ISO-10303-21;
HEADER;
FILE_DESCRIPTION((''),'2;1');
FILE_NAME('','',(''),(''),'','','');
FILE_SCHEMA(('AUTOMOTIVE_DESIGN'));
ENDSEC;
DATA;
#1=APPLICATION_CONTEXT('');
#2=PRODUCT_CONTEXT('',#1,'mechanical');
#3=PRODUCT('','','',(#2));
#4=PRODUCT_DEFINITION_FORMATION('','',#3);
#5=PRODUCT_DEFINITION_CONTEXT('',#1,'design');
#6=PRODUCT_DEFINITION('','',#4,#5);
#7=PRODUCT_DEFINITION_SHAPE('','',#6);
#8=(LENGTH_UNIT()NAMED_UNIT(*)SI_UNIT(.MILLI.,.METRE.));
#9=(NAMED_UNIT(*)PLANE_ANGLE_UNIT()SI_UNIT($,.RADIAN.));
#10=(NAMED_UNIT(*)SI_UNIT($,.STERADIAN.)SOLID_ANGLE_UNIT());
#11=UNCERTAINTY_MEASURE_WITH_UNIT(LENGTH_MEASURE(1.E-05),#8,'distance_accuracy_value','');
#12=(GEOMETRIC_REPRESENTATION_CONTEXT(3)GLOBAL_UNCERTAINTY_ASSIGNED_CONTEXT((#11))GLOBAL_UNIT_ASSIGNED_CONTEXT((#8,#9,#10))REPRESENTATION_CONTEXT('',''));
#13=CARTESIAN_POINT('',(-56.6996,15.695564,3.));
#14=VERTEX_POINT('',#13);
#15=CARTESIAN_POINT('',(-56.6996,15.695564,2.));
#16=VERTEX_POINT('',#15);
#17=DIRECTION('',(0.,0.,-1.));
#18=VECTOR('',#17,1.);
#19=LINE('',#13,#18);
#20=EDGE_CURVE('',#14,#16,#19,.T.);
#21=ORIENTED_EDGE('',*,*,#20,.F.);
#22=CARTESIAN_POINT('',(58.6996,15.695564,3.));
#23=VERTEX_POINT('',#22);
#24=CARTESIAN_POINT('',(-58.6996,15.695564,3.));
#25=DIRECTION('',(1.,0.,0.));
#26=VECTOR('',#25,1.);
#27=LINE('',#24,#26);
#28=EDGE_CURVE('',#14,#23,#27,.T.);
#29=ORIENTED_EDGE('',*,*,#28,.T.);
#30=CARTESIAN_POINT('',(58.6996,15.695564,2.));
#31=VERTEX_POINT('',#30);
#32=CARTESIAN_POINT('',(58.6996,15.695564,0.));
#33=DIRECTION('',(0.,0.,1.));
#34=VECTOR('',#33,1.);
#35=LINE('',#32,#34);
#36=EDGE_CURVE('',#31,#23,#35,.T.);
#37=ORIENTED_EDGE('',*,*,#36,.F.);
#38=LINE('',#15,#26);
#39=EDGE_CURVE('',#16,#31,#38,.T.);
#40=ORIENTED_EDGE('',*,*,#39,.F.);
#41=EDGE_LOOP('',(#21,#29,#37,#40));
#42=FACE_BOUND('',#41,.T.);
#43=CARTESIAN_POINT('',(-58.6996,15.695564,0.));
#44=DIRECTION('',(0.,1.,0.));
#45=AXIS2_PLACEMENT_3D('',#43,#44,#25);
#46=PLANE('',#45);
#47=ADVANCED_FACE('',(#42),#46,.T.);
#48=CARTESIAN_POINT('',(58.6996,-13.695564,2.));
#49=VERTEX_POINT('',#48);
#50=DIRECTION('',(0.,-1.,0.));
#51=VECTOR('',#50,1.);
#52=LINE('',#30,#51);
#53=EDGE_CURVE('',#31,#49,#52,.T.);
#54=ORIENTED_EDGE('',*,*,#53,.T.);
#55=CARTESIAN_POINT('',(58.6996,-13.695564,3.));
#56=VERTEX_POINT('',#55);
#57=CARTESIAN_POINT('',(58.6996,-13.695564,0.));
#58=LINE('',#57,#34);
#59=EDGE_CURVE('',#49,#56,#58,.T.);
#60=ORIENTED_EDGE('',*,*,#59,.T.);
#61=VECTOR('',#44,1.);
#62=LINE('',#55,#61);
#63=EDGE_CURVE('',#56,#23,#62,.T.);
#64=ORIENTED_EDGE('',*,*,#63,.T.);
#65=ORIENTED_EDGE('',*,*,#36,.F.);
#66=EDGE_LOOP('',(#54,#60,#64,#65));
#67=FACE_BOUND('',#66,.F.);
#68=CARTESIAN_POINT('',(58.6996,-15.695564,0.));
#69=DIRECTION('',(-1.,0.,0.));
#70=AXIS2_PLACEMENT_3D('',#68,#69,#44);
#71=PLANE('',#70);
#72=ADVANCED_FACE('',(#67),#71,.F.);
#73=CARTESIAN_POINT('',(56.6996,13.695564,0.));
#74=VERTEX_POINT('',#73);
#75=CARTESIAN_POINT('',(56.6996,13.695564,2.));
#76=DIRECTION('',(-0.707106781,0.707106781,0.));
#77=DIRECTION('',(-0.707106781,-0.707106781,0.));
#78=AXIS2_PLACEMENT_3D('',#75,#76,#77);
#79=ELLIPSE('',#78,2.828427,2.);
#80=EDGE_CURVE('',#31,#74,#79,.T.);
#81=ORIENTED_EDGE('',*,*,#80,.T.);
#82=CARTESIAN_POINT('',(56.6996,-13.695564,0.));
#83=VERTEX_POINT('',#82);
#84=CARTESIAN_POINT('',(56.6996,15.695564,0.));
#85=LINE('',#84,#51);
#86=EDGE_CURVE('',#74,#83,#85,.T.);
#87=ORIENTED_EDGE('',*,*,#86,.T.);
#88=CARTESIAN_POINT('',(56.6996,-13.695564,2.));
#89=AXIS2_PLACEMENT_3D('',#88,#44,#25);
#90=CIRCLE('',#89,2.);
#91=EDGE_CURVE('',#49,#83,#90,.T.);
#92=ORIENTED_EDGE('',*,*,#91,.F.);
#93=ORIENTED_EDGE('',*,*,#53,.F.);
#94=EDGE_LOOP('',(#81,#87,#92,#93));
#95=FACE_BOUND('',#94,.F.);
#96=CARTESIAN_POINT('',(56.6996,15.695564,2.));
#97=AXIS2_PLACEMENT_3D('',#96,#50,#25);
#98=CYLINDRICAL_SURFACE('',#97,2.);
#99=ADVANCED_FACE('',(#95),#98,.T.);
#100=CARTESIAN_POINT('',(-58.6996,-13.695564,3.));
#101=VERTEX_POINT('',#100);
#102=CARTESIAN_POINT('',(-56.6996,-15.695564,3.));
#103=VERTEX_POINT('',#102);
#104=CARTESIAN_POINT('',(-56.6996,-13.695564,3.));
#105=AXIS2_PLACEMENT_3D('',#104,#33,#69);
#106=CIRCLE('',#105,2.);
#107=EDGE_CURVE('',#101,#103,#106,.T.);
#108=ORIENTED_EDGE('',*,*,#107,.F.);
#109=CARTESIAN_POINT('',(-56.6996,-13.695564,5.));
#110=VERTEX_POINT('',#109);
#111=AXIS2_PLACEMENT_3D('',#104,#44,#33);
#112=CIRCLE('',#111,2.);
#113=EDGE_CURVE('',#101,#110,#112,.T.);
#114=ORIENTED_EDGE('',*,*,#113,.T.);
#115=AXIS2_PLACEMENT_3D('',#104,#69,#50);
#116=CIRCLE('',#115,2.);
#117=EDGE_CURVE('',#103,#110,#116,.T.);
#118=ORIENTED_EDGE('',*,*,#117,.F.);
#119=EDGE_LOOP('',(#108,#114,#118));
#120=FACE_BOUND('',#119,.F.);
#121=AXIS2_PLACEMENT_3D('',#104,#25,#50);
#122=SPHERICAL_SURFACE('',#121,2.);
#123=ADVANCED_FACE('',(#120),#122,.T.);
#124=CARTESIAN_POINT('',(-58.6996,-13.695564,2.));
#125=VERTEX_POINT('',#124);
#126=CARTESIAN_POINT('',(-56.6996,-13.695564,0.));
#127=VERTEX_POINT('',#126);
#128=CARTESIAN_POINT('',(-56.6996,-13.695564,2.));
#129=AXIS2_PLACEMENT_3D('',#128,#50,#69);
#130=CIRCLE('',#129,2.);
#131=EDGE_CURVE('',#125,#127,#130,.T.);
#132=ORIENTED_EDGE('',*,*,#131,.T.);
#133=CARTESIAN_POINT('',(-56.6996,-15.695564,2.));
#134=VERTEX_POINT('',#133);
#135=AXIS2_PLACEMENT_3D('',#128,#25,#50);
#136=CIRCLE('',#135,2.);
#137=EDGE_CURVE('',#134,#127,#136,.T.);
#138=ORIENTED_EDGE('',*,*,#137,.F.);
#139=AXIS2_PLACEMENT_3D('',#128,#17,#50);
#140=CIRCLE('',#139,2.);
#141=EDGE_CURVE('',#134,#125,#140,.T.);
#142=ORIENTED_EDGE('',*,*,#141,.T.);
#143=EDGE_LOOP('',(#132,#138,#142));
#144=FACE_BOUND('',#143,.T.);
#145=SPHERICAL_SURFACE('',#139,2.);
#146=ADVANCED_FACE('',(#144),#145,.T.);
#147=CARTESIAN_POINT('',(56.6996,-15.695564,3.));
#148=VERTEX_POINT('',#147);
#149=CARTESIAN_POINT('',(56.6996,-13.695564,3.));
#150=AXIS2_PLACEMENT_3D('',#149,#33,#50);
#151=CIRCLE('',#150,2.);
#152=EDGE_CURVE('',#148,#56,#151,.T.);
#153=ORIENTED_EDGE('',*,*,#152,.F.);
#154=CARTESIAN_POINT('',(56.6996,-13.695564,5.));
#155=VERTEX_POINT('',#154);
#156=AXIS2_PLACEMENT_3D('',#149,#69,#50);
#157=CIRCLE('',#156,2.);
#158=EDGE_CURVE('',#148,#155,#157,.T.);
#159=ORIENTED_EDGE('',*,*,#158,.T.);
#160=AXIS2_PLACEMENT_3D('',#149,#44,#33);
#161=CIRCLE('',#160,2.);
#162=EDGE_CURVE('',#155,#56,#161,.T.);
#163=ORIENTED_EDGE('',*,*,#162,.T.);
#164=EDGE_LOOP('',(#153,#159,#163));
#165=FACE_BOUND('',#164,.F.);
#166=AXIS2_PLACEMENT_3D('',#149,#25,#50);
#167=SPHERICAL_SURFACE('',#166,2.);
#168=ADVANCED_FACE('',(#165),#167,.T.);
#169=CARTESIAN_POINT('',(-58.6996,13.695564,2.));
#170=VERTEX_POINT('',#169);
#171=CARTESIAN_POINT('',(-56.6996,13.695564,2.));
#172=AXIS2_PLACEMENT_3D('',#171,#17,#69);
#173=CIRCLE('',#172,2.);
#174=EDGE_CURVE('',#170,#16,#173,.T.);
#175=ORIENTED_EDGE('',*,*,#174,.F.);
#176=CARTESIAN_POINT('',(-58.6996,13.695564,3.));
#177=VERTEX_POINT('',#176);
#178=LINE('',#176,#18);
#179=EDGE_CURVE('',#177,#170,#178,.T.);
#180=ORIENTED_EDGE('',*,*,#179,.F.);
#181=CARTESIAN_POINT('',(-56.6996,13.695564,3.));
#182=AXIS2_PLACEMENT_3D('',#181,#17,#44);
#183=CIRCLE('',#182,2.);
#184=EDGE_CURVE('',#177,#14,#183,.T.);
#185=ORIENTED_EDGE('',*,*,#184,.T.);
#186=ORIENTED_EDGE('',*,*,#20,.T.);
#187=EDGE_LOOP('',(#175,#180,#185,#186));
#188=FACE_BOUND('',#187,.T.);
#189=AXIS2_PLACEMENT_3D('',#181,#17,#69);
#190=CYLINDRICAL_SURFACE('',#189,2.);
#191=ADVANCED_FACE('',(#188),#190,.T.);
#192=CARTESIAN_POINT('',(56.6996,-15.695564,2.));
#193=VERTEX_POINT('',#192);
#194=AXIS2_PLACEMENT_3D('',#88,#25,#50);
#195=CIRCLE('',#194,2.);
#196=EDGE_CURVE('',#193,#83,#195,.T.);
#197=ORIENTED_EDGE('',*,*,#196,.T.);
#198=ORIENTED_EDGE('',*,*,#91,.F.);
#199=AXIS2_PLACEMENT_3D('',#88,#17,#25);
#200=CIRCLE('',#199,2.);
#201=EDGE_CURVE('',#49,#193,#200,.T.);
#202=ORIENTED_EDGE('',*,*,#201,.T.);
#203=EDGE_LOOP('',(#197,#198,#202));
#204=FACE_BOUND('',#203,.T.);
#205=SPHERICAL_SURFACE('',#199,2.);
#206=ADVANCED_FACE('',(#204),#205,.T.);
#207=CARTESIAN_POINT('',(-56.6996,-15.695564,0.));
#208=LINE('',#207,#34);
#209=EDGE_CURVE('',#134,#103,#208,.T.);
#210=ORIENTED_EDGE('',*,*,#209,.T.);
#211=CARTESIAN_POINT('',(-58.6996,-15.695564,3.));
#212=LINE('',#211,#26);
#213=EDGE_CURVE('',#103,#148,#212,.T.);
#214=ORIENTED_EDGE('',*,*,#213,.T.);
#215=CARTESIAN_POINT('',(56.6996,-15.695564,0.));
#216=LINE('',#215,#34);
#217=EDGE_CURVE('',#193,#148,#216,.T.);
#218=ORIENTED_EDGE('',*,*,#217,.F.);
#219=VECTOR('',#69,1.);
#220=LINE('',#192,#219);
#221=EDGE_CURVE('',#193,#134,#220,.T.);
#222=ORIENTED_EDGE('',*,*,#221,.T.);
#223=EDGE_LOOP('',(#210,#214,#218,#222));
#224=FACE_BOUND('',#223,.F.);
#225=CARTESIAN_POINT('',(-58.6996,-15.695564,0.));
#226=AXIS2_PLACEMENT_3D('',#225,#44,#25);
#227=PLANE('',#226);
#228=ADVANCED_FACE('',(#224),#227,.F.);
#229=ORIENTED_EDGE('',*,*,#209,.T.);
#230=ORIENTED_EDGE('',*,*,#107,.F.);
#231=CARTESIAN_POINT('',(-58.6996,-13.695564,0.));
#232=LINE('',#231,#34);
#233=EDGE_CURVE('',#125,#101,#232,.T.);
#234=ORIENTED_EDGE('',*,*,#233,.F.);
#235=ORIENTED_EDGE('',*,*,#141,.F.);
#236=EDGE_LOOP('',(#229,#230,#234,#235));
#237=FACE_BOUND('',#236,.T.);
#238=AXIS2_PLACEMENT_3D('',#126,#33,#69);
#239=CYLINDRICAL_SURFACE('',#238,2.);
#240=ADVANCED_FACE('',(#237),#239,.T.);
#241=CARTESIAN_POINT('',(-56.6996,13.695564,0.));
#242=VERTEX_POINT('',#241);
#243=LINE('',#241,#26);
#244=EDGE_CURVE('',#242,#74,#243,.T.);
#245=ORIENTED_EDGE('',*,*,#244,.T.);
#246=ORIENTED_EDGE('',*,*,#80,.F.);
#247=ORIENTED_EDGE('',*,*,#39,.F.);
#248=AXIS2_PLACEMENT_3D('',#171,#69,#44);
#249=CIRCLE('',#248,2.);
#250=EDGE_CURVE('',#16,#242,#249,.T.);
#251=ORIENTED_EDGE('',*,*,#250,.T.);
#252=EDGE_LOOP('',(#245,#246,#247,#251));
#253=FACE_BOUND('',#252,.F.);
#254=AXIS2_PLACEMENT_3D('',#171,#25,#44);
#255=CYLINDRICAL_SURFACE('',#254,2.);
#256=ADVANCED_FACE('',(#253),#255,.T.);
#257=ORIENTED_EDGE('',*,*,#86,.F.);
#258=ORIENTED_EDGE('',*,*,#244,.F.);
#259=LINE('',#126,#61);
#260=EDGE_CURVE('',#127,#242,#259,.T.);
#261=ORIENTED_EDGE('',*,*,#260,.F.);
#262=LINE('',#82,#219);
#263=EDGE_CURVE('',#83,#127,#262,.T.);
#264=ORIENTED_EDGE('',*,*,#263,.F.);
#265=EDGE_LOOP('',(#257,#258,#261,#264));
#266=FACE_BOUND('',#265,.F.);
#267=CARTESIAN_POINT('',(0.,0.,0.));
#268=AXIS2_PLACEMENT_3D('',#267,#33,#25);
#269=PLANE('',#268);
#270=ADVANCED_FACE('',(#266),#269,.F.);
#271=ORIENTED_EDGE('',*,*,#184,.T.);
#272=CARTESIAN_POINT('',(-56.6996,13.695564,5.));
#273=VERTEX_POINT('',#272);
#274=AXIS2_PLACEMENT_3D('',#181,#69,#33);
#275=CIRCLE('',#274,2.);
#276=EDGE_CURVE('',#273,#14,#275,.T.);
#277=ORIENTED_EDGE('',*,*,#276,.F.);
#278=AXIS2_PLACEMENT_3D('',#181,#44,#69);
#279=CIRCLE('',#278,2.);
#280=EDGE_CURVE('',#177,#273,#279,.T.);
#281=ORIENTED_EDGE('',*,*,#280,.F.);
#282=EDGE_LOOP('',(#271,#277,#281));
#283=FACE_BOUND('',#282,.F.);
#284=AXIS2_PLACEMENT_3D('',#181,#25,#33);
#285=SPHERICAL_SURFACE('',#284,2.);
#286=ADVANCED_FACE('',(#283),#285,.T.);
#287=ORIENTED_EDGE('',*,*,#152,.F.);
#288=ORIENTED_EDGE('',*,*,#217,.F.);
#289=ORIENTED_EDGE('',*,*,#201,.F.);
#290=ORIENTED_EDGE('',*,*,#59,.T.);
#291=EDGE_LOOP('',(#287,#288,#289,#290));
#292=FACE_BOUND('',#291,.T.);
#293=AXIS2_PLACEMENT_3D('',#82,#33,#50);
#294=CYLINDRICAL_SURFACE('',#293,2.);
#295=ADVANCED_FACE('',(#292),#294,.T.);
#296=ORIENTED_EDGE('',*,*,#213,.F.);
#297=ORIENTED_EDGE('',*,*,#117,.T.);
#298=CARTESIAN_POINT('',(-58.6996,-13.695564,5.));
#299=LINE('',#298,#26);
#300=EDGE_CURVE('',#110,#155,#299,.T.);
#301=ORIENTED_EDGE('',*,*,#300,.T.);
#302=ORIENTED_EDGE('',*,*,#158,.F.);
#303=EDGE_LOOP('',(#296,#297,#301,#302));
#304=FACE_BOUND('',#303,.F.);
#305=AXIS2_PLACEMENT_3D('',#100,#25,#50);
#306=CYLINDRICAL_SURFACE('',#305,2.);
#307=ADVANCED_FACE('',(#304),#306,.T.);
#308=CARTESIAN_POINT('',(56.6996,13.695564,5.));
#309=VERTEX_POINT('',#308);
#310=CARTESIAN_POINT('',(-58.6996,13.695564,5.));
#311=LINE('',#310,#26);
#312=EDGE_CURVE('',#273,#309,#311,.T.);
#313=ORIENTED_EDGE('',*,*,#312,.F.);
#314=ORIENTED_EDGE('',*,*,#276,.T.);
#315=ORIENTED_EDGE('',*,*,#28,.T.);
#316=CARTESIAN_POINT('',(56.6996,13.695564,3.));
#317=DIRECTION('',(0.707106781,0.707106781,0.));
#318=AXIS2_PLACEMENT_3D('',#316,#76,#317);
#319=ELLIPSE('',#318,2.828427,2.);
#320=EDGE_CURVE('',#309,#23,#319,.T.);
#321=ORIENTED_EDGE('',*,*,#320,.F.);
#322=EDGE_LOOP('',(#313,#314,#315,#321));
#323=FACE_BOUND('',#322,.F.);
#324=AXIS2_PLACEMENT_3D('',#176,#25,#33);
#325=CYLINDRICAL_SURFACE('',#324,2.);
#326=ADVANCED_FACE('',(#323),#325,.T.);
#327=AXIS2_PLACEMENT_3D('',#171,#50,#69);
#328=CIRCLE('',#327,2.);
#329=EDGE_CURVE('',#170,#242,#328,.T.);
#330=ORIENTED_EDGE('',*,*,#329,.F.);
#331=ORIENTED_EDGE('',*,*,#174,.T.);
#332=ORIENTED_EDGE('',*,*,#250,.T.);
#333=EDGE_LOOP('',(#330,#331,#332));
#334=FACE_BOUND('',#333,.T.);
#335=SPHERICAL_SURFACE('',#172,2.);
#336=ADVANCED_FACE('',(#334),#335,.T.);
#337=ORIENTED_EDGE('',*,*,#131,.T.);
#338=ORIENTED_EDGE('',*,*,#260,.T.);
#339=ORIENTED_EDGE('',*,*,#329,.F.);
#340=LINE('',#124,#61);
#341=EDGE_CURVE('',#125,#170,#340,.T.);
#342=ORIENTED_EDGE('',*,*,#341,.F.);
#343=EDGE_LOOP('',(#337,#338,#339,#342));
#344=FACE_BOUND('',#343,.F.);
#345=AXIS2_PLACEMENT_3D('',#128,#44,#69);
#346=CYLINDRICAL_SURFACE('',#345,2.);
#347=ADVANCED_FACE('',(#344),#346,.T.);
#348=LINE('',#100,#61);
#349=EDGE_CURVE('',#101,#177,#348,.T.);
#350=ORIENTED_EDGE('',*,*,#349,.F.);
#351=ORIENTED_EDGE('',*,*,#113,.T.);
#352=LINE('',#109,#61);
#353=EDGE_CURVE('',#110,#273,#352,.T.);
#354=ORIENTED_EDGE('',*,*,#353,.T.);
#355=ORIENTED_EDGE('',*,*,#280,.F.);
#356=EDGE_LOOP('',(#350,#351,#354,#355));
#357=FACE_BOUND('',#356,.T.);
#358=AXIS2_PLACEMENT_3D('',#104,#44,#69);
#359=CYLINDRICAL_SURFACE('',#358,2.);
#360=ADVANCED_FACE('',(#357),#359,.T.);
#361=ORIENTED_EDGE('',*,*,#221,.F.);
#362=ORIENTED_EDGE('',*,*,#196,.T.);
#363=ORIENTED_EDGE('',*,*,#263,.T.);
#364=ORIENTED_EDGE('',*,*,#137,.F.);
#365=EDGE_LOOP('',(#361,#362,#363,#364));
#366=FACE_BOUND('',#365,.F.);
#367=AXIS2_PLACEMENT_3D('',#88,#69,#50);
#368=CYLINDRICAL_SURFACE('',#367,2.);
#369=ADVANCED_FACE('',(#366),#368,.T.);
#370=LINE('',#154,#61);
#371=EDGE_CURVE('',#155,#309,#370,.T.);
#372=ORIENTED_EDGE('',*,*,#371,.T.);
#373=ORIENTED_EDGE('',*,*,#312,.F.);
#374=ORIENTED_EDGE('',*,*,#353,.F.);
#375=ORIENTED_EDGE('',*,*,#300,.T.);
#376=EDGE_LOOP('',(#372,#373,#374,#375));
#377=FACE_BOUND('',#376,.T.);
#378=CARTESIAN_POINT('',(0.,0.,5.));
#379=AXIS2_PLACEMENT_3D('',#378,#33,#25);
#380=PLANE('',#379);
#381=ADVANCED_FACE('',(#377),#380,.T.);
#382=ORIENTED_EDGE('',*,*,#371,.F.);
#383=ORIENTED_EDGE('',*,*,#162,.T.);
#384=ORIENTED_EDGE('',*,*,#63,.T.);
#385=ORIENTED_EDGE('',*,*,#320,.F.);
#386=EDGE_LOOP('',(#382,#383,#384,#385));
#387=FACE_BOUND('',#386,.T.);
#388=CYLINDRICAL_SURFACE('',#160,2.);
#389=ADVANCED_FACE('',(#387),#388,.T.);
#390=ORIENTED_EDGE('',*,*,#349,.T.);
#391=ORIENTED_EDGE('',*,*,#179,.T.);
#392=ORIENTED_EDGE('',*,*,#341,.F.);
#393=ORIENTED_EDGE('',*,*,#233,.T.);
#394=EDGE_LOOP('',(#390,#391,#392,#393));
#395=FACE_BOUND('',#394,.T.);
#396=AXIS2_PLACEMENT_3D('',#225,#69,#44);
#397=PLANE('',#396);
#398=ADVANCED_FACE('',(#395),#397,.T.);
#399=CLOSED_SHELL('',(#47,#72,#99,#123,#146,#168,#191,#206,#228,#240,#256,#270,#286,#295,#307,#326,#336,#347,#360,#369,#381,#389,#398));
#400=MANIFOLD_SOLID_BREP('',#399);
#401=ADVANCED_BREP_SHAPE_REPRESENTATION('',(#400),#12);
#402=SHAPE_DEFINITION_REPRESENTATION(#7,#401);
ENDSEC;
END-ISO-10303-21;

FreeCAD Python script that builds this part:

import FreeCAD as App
import Part
import Sketcher

V = App.Vector


def edges_at(feature, points):
    """Names of the edges that pass closest to the given points."""
    edges = feature.Shape.Edges
    near = lambda p: min(range(len(edges)), key=lambda i: edges[i].distToShape(Part.Vertex(*p))[0])
    return sorted({f"Edge{near(p) + 1}" for p in points})


def add_polygon(sketch, points):
    """Adds a closed chain of lines whose ends are joined by coincident constraints."""
    first, n = sketch.GeometryCount, len(points)
    for a, b in zip(points, points[1:] + points[:1]):
        sketch.addGeometry(Part.LineSegment(App.Vector(*a, 0), App.Vector(*b, 0)), False)
    for i in range(n):
        sketch.addConstraint(Sketcher.Constraint("Coincident", first + i, 2, first + (i + 1) % n, 1))

doc = App.newDocument("Part")
body = doc.addObject("PartDesign::Body", "Body")

# Sketch on XY plane
sketch1 = body.newObject("Sketcher::SketchObject", "Sketch")
sketch1.AttachmentSupport = (doc.getObject("XY_Plane"), [""])
sketch1.MapMode = "FlatFace"
add_polygon(sketch1, [(-59, 16), (-59, -16), (59, -16), (59, 16)])  # lines 0-3
sketch1.addConstraint([
    Sketcher.Constraint("Vertical", 0),
    Sketcher.Constraint("Horizontal", 1),
    Sketcher.Constraint("Vertical", 2),
    Sketcher.Constraint("Horizontal", 3),
    Sketcher.Constraint("Symmetric", 0, 2, 2, 2, -1, 1),
    Sketcher.Constraint("DistanceX", 1, 1, 1, 2, 117.3992),
    Sketcher.Constraint("DistanceY", 0, 2, 0, 1, 31.391128),
])
pad1 = body.newObject("PartDesign::Pad", "Pad")
pad1.Profile = sketch1
pad1.Length = 5
doc.recompute()

fillet = body.newObject("PartDesign::Fillet", "Fillet")
fillet.Base = (pad1, edges_at(pad1, [(0, -15.696, 5)]))
fillet.Radius = 2
doc.recompute()

fillet2 = body.newObject("PartDesign::Fillet", "Fillet001")
fillet2.Base = (fillet, edges_at(fillet, [(58.7, 1, 5), (0, 15.696, 5)]))
fillet2.Radius = 2
doc.recompute()

fillet3 = body.newObject("PartDesign::Fillet", "Fillet002")
fillet3.Base = (fillet2, edges_at(fillet2, [(-58.7, 0, 5)]))
fillet3.Radius = 2
doc.recompute()

fillet4 = body.newObject("PartDesign::Fillet", "Fillet003")
fillet4.Base = (fillet3, edges_at(fillet3, [
    (-58.7, 0, 0),
    (0, -15.696, 0),
    (1, 15.696, 0),
    (58.7, 1, 0),
]))
fillet4.Radius = 2

doc.recompute()
